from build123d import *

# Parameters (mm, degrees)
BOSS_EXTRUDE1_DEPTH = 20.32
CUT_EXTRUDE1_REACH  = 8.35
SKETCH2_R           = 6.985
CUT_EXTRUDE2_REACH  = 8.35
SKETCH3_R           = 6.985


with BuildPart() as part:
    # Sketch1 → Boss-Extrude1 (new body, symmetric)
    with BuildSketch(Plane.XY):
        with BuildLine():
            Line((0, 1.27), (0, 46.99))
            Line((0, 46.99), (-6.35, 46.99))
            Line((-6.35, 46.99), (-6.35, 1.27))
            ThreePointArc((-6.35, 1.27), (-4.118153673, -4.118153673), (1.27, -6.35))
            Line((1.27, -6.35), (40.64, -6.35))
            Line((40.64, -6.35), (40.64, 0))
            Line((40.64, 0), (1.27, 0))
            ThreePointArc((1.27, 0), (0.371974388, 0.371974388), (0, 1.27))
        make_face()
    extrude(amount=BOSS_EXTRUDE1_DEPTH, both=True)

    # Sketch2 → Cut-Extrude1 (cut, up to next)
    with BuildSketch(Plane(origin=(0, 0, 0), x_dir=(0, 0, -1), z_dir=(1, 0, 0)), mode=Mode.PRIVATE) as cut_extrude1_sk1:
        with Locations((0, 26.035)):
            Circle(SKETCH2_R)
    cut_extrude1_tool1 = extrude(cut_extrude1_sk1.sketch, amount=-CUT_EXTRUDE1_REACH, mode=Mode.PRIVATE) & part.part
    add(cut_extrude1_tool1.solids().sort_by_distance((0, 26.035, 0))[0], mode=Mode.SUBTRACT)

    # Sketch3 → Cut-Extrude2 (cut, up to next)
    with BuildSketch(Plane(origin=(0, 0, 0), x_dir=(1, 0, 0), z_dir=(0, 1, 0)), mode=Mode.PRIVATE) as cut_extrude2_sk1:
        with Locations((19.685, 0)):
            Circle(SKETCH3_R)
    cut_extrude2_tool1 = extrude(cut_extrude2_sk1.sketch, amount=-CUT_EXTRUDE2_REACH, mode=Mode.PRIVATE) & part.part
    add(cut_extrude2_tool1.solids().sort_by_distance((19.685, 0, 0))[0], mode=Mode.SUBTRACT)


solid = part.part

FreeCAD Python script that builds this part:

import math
import FreeCAD as App
import Part
import Sketcher
Q = App.Units.Quantity

doc = App.newDocument("Part")
body = doc.addObject("PartDesign::Body", "Body")

# Sketch on XY plane
sketch1 = body.newObject("Sketcher::SketchObject", "Sketch")
sketch1.AttachmentSupport = (doc.getObject("XY_Plane"), [""])
sketch1.MapMode = "FlatFace"
sketch1.addGeometry([
    Part.LineSegment(App.Vector(0, 1.3, 0), App.Vector(0, 47, 0)),  # 0
    Part.LineSegment(App.Vector(0, 47, 0), App.Vector(-6.3, 47, 0)),  # 1
    Part.LineSegment(App.Vector(-6.3, 47, 0), App.Vector(-6.3, 1.3, 0)),  # 2
    Part.ArcOfCircle(Part.Circle(App.Vector(1.3, 1.3, 0), App.Vector(0, 0, 1), 7.6), math.radians(180), math.radians(270)),  # 3
    Part.LineSegment(App.Vector(1.3, -6.3, 0), App.Vector(40.6, -6.3, 0)),  # 4
    Part.LineSegment(App.Vector(40.6, -6.3, 0), App.Vector(40.6, 0, 0)),  # 5
    Part.LineSegment(App.Vector(40.6, 0, 0), App.Vector(1.3, 0, 0)),  # 6
    Part.ArcOfCircle(Part.Circle(App.Vector(1.3, 1.3, 0), App.Vector(0, 0, 1), 1.3), math.radians(180), math.radians(270)),  # 7
], False)
sketch1.addConstraint([
    Sketcher.Constraint("Coincident", 0, 2, 1, 1),
    Sketcher.Constraint("Coincident", 1, 2, 2, 1),
    Sketcher.Constraint("Tangent", 2, 2, 3, 1),
    Sketcher.Constraint("Tangent", 3, 2, 4, 1),
    Sketcher.Constraint("Coincident", 4, 2, 5, 1),
    Sketcher.Constraint("Coincident", 5, 2, 6, 1),
    Sketcher.Constraint("Tangent", 6, 2, 7, 2),
    Sketcher.Constraint("Tangent", 7, 1, 0, 1),
    Sketcher.Constraint("Vertical", 0),
    Sketcher.Constraint("Horizontal", 1),
    Sketcher.Constraint("Vertical", 2),
    Sketcher.Constraint("Horizontal", 4),
    Sketcher.Constraint("Vertical", 5),
    Sketcher.Constraint("Horizontal", 6),
    Sketcher.Constraint("Coincident", 7, 3, 3, 3),
    Sketcher.Constraint("PointOnObject", 0, 2, -2),
    Sketcher.Constraint("PointOnObject", 5, 2, -1),
    Sketcher.Constraint("Radius", 3, Q("0.3 in")),
    Sketcher.Constraint("Radius", 7, Q("0.05 in")),
    Sketcher.Constraint("DistanceY", 0, 1, 0, 2, Q("1.8 in")),
    Sketcher.Constraint("DistanceX", 4, 1, 4, 2, Q("1.55 in")),
])
pad1 = body.newObject("PartDesign::Pad", "Pad")
pad1.Profile = sketch1
pad1.Length = Q("1.6 in")
pad1.Midplane = True

# Sketch on YZ plane
sketch2 = body.newObject("Sketcher::SketchObject", "Sketch001")
sketch2.AttachmentSupport = (doc.getObject("YZ_Plane"), [""])
sketch2.MapMode = "FlatFace"
sketch2.addGeometry(Part.Circle(App.Vector(26, 0, 0), App.Vector(0, 0, 1), 7), False)
sketch2.addConstraint([
    Sketcher.Constraint("PointOnObject", 0, 3, -1),
    Sketcher.Constraint("Diameter", 0, Q("0.55 in")),
    Sketcher.Constraint("DistanceX", -1, 1, 0, 3, Q("1.025 in")),
])
pocket1 = body.newObject("PartDesign::Pocket", "Pocket")
pocket1.Profile = sketch2
pocket1.Type = "UpToFirst"

# Sketch on XZ plane
sketch3 = body.newObject("Sketcher::SketchObject", "Sketch002")
sketch3.AttachmentSupport = (doc.getObject("XZ_Plane"), [""])
sketch3.MapMode = "FlatFace"
sketch3.addGeometry(Part.Circle(App.Vector(20, 0, 0), App.Vector(0, 0, 1), 7), False)
sketch3.addConstraint([
    Sketcher.Constraint("PointOnObject", 0, 3, -1),
    Sketcher.Constraint("Diameter", 0, Q("0.55 in")),
    Sketcher.Constraint("DistanceX", -1, 1, 0, 3, Q("0.775 in")),
])
pocket2 = body.newObject("PartDesign::Pocket", "Pocket001")
pocket2.Profile = sketch3
pocket2.Type = "UpToFirst"
pocket2.Reversed = True

doc.recompute()
